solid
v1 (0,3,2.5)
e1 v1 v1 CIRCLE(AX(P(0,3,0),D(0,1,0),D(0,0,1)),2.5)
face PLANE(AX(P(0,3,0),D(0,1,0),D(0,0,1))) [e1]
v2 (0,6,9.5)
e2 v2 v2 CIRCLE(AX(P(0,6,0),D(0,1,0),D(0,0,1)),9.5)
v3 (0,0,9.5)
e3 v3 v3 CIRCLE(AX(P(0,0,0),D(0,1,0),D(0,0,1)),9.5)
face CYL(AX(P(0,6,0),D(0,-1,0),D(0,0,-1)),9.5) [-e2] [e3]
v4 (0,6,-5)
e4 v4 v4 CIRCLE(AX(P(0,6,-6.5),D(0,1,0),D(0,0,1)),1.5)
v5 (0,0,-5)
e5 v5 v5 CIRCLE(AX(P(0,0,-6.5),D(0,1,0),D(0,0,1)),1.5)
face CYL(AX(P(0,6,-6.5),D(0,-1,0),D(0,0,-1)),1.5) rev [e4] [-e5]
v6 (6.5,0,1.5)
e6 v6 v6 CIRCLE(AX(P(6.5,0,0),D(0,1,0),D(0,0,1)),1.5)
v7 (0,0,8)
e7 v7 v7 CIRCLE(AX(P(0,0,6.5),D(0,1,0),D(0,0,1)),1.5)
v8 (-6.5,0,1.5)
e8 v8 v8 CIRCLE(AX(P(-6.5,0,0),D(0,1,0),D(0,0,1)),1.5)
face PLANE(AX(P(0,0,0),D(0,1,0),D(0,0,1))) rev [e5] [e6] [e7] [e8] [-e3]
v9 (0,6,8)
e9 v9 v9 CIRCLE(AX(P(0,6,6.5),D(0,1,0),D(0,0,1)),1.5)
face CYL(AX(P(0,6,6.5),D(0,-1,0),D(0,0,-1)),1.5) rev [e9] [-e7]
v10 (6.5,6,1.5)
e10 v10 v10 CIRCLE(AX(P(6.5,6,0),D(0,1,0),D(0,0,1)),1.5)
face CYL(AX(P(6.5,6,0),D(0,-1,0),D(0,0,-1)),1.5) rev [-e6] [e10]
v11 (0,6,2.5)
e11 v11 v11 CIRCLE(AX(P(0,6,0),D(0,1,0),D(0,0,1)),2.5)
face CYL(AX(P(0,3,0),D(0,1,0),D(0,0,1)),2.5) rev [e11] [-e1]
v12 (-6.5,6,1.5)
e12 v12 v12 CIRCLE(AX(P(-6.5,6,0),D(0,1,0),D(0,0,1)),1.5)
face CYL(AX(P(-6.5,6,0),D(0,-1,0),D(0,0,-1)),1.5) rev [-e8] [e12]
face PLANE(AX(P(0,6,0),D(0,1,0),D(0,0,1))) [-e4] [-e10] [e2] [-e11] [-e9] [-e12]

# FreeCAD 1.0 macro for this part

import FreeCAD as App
import Part
import Sketcher
from FreeCAD import Vector

doc = App.newDocument("Part")
params = doc.addObject("Spreadsheet::Sheet", "Params")
for row, (alias, value) in enumerate([
    ("sketch1_diameter", "19 mm"),
    ("sketch1_diameter2", "3 mm"),
    ("pad1_length", "6 mm"),
    ("sketch2_diameter", "5 mm"),
    ("pocket1_length", "3 mm"),
], start=1):
    params.set(f"A{row}", alias)
    params.set(f"B{row}", "=" + value)
    params.setAlias(f"B{row}", alias)

body = doc.addObject("PartDesign::Body", "Body")

# Sketch on XZ plane
sketch1 = body.newObject("Sketcher::SketchObject", "Sketch")
sketch1.AttachmentSupport = (doc.getObject("XZ_Plane"), [""])
sketch1.MapMode = "FlatFace"
sketch1.addGeometry([
    Part.Circle(Vector(0, 0, 0), Vector(0, 0, 1), 9.5),  # 0
    Part.Circle(Vector(0, -6.5, 0), Vector(0, 0, 1), 1.5),  # 1
    Part.Circle(Vector(-6.5, 0, 0), Vector(0, 0, 1), 1.5),  # 2
    Part.Circle(Vector(6.5, 0, 0), Vector(0, 0, 1), 1.5),  # 3
    Part.Circle(Vector(0, 6.5, 0), Vector(0, 0, 1), 1.5),  # 4
], False)
sketch1.addConstraint([
    Sketcher.Constraint("Coincident", 0, 3, -1, 1),
    Sketcher.Constraint("Equal", 1, 2),
    Sketcher.Constraint("Equal", 2, 3),
    Sketcher.Constraint("Equal", 3, 4),
    Sketcher.Constraint("Symmetric", 2, 3, 3, 3, -1, 1),
    Sketcher.Constraint("Symmetric", 1, 3, 4, 3, -1, 1),
    Sketcher.Constraint("PointOnObject", 1, 3, -2),
    Sketcher.Constraint("PointOnObject", 2, 3, -1),
    Sketcher.Constraint("Diameter", 0, 19.0),
    Sketcher.Constraint("Diameter", 1, 3.0),
    Sketcher.Constraint("DistanceX", 2, 3, 3, 3, 13.0),
    Sketcher.Constraint("DistanceY", 1, 3, 4, 3, 13.0),
])
sketch1.setExpression("Constraints[8]", "Params.sketch1_diameter")
sketch1.setExpression("Constraints[9]", "Params.sketch1_diameter2")
pad1 = body.newObject("PartDesign::Pad", "Pad")
pad1.Profile = sketch1
pad1.setExpression("Length", "Params.pad1_length")
pad1.Reversed = True

# Sketch on XZ plane
sketch2 = body.newObject("Sketcher::SketchObject", "Sketch001")
sketch2.AttachmentSupport = (doc.getObject("XZ_Plane"), [""])
sketch2.MapMode = "FlatFace"
sketch2.AttachmentOffset = App.Placement(Vector(0, 0, -6), App.Rotation())
sketch2.addGeometry(Part.Circle(Vector(0, 0, 0), Vector(0, 0, 1), 2.5), False)
sketch2.addConstraint([
    Sketcher.Constraint("Coincident", 0, 3, -1, 1),
    Sketcher.Constraint("Diameter", 0, 5.0),
])
sketch2.setExpression("Constraints[1]", "Params.sketch2_diameter")
pocket1 = body.newObject("PartDesign::Pocket", "Pocket")
pocket1.Profile = sketch2
pocket1.setExpression("Length", "Params.pocket1_length")
pocket1.Reversed = True

doc.recompute()
